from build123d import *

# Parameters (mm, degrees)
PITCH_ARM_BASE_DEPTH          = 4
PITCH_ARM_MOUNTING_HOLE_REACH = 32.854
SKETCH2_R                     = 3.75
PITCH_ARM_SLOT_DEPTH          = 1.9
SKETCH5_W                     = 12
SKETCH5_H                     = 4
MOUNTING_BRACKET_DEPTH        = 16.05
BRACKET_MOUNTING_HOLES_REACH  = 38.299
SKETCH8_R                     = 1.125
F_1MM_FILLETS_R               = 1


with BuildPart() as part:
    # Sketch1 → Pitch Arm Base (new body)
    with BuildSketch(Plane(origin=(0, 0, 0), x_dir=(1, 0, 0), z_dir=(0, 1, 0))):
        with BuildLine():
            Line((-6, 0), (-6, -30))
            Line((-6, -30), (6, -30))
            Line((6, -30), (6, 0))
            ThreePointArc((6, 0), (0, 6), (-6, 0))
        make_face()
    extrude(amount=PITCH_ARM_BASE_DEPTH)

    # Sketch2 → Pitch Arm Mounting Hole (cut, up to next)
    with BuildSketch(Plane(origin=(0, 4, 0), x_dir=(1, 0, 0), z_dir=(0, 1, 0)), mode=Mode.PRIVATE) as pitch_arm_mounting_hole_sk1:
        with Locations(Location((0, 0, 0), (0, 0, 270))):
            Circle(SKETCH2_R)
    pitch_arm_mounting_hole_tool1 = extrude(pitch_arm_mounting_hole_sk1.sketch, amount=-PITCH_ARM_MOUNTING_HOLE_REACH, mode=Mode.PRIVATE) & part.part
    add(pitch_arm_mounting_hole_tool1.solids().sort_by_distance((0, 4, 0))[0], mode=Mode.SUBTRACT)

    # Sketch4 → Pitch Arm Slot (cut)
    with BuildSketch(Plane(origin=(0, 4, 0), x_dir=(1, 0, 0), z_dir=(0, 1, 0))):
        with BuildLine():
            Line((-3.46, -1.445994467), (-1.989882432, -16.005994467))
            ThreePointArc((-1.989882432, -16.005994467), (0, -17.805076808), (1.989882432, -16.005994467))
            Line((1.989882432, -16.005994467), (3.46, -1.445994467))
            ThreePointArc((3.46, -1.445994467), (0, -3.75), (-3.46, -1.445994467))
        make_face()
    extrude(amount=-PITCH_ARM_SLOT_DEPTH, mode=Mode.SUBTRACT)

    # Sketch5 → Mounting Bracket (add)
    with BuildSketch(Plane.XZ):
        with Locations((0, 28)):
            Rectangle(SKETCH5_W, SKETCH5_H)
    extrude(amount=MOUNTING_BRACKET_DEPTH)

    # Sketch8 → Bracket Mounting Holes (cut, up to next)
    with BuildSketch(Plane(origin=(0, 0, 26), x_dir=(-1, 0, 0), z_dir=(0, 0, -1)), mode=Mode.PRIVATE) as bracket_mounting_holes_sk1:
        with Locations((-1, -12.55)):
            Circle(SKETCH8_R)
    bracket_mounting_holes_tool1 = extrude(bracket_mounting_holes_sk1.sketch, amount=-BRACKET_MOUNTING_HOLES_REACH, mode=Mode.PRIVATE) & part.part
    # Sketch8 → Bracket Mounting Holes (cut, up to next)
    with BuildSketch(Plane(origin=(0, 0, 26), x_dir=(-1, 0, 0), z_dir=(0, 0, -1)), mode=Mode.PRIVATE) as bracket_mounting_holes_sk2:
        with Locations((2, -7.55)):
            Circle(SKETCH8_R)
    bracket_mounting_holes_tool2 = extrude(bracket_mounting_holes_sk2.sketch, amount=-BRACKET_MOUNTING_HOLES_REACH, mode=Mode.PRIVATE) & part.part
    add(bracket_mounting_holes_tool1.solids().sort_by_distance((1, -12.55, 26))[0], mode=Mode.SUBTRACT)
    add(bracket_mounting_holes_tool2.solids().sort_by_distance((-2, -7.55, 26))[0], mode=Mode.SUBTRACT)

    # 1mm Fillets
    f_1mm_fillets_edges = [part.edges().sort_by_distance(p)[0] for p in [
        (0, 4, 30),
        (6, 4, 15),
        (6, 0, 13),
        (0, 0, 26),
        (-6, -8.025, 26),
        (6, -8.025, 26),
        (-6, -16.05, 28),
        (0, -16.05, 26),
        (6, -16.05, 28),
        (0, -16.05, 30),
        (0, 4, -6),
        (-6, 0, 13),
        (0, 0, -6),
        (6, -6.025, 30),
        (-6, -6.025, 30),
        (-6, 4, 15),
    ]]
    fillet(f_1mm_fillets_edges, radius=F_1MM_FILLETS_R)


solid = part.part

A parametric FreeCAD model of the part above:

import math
import FreeCAD as App
import Part
import Sketcher

V = App.Vector
Q = App.Units.Quantity


def edges_at(feature, points):
    """Names of the edges that pass closest to the given points."""
    edges = feature.Shape.Edges
    near = lambda p: min(range(len(edges)), key=lambda i: edges[i].distToShape(Part.Vertex(*p))[0])
    return sorted({f"Edge{near(p) + 1}" for p in points})


def add_polygon(sketch, points):
    """Adds a closed chain of lines whose ends are joined by coincident constraints."""
    first, n = sketch.GeometryCount, len(points)
    for a, b in zip(points, points[1:] + points[:1]):
        sketch.addGeometry(Part.LineSegment(App.Vector(*a, 0), App.Vector(*b, 0)), False)
    for i in range(n):
        sketch.addConstraint(Sketcher.Constraint("Coincident", first + i, 2, first + (i + 1) % n, 1))

doc = App.newDocument("Part")
params = doc.addObject("Spreadsheet::Sheet", "Params")
for row, (alias, value) in enumerate([
    ("sketch1_radius", "6 mm"),
    ("sketch1_height", "30 mm"),
    ("pad1_length", "4 mm"),
    ("sketch2_diameter", "7.5 mm"),
    ("sketch3_radius", "2 mm"),
    ("sketch3_radius2", "3.75 mm"),
    ("pocket2_length", "1.9 mm"),
    ("sketch4_width", "12 mm"),
    ("sketch4_height", "4 mm"),
    ("pad2_length", "16.05 mm"),
    ("sketch5_diameter", "2.25 mm"),
    ("sketch6_diameter", "2.25 mm"),
    ("fillet_radius", "1 mm"),
], start=1):
    params.set(f"A{row}", alias)
    params.set(f"B{row}", "=" + value)
    params.setAlias(f"B{row}", alias)

body = doc.addObject("PartDesign::Body", "Body")

sketch1 = body.newObject("Sketcher::SketchObject", "Sketch")
sketch1.AttachmentSupport = (doc.getObject("XZ_Plane"), [""])
sketch1.MapMode = "FlatFace"
sketch1.addGeometry([
    Part.LineSegment(V(-6, 0, 0), V(-6, 30, 0)),
    Part.LineSegment(V(-6, 30, 0), V(6, 30, 0)),
    Part.LineSegment(V(6, 30, 0), V(6, 0, 0)),
    Part.ArcOfCircle(Part.Circle(V(0, 0, 0), V(0, 0, 1), 6), math.radians(180), math.radians(360)),
], False)
sketch1.addConstraint([
    Sketcher.Constraint("Coincident", 0, 2, 1, 1),
    Sketcher.Constraint("Coincident", 1, 2, 2, 1),
    Sketcher.Constraint("Tangent", 2, 2, 3, 2),
    Sketcher.Constraint("Tangent", 3, 1, 0, 1),
    Sketcher.Constraint("Vertical", 0),
    Sketcher.Constraint("Horizontal", 1),
    Sketcher.Constraint("Vertical", 2),
    Sketcher.Constraint("Coincident", 3, 3, -1, 1),
    Sketcher.Constraint("Radius", 3, Q("6 mm")),
    Sketcher.Constraint("DistanceY", 0, 1, 0, 2, Q("30 mm")),
])
sketch1.setExpression("Constraints[8]", "Params.sketch1_radius")
sketch1.setExpression("Constraints[9]", "Params.sketch1_height")
pad1 = body.newObject("PartDesign::Pad", "Pad")
pad1.Profile = sketch1
pad1.setExpression("Length", "Params.pad1_length")
pad1.Reversed = True

sketch2 = body.newObject("Sketcher::SketchObject", "Sketch001")
sketch2.AttachmentSupport = (doc.getObject("XZ_Plane"), [""])
sketch2.MapMode = "FlatFace"
sketch2.AttachmentOffset = App.Placement(V(0, 0, -4), App.Rotation())
sketch2.addGeometry(Part.Circle(V(0, 0, 0), V(0, 0, 1), 3.75), False)
sketch2.addConstraint([
    Sketcher.Constraint("Coincident", 0, 3, -1, 1),
    Sketcher.Constraint("Diameter", 0, Q("7.5 mm")),
])
sketch2.setExpression("Constraints[1]", "Params.sketch2_diameter")
pocket1 = body.newObject("PartDesign::Pocket", "Pocket")
pocket1.Profile = sketch2
pocket1.Type = "UpToFirst"
pocket1.Reversed = True

sketch3 = body.newObject("Sketcher::SketchObject", "Sketch002")
sketch3.AttachmentSupport = (doc.getObject("XZ_Plane"), [""])
sketch3.MapMode = "FlatFace"
sketch3.AttachmentOffset = App.Placement(V(0, 0, -4), App.Rotation())
sketch3.addGeometry([
    Part.LineSegment(V(-3.46, 1.445994, 0), V(-1.989882, 16.005994, 0)),
    Part.ArcOfCircle(Part.Circle(V(0, 15.805077, 0), V(0, 0, 1), 2), math.radians(5.765593), math.radians(174.234407)),
    Part.LineSegment(V(1.989882, 16.005994, 0), V(3.46, 1.445994, 0)),
    Part.ArcOfCircle(Part.Circle(V(0, 0, 0), V(0, 0, 1), 3.75), math.radians(22.680902), math.radians(157.319098)),
], False)
sketch3.addConstraint([
    Sketcher.Constraint("Tangent", 0, 2, 1, 2),
    Sketcher.Constraint("Tangent", 1, 1, 2, 1),
    Sketcher.Constraint("Coincident", 2, 2, 3, 1),
    Sketcher.Constraint("Coincident", 3, 2, 0, 1),
    Sketcher.Constraint("Coincident", 3, 3, -1, 1),
    Sketcher.Constraint("Symmetric", 0, 2, 1, 1, -2),
    Sketcher.Constraint("Radius", 1, Q("2 mm")),
    Sketcher.Constraint("Radius", 3, Q("3.75 mm")),
    Sketcher.Constraint("DistanceX", -1, 1, 2, 2, Q("3.46 mm")),
    Sketcher.Constraint("DistanceY", 2, 2, 1, 1, Q("14.56 mm")),
])
sketch3.setExpression("Constraints[6]", "Params.sketch3_radius")
sketch3.setExpression("Constraints[7]", "Params.sketch3_radius2")
pocket2 = body.newObject("PartDesign::Pocket", "Pocket001")
pocket2.Profile = sketch3
pocket2.setExpression("Length", "Params.pocket2_length")
pocket2.Reversed = True

sketch4 = body.newObject("Sketcher::SketchObject", "Sketch003")
sketch4.AttachmentSupport = (doc.getObject("XZ_Plane"), [""])
sketch4.MapMode = "FlatFace"
add_polygon(sketch4, [(-6, 30), (-6, 26), (6, 26), (6, 30)])
sketch4.addConstraint([
    Sketcher.Constraint("Vertical", 0),
    Sketcher.Constraint("Horizontal", 1),
    Sketcher.Constraint("Vertical", 2),
    Sketcher.Constraint("Horizontal", 3),
    Sketcher.Constraint("DistanceX", 1, 1, 1, 2, Q("12 mm")),
    Sketcher.Constraint("DistanceY", 0, 2, 0, 1, Q("4 mm")),
    Sketcher.Constraint("DistanceX", 0, 2, -1, 1, Q("6 mm")),
    Sketcher.Constraint("DistanceY", -1, 1, 0, 2, Q("26 mm")),
])
sketch4.setExpression("Constraints[8]", "Params.sketch4_width")
sketch4.setExpression("Constraints[9]", "Params.sketch4_height")
pad2 = body.newObject("PartDesign::Pad", "Pad001")
pad2.Profile = sketch4
pad2.setExpression("Length", "Params.pad2_length")

sketch5 = body.newObject("Sketcher::SketchObject", "Sketch004")
sketch5.AttachmentSupport = (doc.getObject("XY_Plane"), [""])
sketch5.MapMode = "FlatFace"
sketch5.AttachmentOffset = App.Placement(V(0, 0, 26), App.Rotation())
sketch5.addGeometry(Part.Circle(V(1, -12.55, 0), V(0, 0, 1), 1.125), False)
sketch5.addConstraint([
    Sketcher.Constraint("Diameter", 0, Q("2.25 mm")),
    Sketcher.Constraint("DistanceX", -1, 1, 0, 3, Q("1 mm")),
    Sketcher.Constraint("DistanceY", 0, 3, -1, 1, Q("12.55 mm")),
])
sketch5.setExpression("Constraints[0]", "Params.sketch5_diameter")
pocket3 = body.newObject("PartDesign::Pocket", "Pocket002")
pocket3.Profile = sketch5
pocket3.Type = "UpToFirst"
pocket3.Reversed = True

sketch6 = body.newObject("Sketcher::SketchObject", "Sketch005")
sketch6.AttachmentSupport = (doc.getObject("XY_Plane"), [""])
sketch6.MapMode = "FlatFace"
sketch6.AttachmentOffset = App.Placement(V(0, 0, 26), App.Rotation())
sketch6.addGeometry(Part.Circle(V(-2, -7.55, 0), V(0, 0, 1), 1.125), False)
sketch6.addConstraint([
    Sketcher.Constraint("Diameter", 0, Q("2.25 mm")),
    Sketcher.Constraint("DistanceX", 0, 3, -1, 1, Q("2 mm")),
    Sketcher.Constraint("DistanceY", 0, 3, -1, 1, Q("7.55 mm")),
])
sketch6.setExpression("Constraints[0]", "Params.sketch6_diameter")
pocket4 = body.newObject("PartDesign::Pocket", "Pocket003")
pocket4.Profile = sketch6
pocket4.Type = "UpToFirst"
pocket4.Reversed = True
doc.recompute()

fillet = body.newObject("PartDesign::Fillet", "Fillet")
fillet.Base = (pocket4, edges_at(pocket4, [
    (0, 4, 30),
    (6, 4, 15),
    (6, 0, 13),
    (0, 0, 26),
    (-6, -8.025, 26),
    (6, -8.025, 26),
    (-6, -16.05, 28),
    (0, -16.05, 26),
    (6, -16.05, 28),
    (0, -16.05, 30),
    (0, 4, -6),
    (-6, 0, 13),
    (0, 0, -6),
    (6, -6.025, 30),
    (-6, -6.025, 30),
    (-6, 4, 15),
]))
fillet.setExpression("Radius", "Params.fillet_radius")

doc.recompute()
